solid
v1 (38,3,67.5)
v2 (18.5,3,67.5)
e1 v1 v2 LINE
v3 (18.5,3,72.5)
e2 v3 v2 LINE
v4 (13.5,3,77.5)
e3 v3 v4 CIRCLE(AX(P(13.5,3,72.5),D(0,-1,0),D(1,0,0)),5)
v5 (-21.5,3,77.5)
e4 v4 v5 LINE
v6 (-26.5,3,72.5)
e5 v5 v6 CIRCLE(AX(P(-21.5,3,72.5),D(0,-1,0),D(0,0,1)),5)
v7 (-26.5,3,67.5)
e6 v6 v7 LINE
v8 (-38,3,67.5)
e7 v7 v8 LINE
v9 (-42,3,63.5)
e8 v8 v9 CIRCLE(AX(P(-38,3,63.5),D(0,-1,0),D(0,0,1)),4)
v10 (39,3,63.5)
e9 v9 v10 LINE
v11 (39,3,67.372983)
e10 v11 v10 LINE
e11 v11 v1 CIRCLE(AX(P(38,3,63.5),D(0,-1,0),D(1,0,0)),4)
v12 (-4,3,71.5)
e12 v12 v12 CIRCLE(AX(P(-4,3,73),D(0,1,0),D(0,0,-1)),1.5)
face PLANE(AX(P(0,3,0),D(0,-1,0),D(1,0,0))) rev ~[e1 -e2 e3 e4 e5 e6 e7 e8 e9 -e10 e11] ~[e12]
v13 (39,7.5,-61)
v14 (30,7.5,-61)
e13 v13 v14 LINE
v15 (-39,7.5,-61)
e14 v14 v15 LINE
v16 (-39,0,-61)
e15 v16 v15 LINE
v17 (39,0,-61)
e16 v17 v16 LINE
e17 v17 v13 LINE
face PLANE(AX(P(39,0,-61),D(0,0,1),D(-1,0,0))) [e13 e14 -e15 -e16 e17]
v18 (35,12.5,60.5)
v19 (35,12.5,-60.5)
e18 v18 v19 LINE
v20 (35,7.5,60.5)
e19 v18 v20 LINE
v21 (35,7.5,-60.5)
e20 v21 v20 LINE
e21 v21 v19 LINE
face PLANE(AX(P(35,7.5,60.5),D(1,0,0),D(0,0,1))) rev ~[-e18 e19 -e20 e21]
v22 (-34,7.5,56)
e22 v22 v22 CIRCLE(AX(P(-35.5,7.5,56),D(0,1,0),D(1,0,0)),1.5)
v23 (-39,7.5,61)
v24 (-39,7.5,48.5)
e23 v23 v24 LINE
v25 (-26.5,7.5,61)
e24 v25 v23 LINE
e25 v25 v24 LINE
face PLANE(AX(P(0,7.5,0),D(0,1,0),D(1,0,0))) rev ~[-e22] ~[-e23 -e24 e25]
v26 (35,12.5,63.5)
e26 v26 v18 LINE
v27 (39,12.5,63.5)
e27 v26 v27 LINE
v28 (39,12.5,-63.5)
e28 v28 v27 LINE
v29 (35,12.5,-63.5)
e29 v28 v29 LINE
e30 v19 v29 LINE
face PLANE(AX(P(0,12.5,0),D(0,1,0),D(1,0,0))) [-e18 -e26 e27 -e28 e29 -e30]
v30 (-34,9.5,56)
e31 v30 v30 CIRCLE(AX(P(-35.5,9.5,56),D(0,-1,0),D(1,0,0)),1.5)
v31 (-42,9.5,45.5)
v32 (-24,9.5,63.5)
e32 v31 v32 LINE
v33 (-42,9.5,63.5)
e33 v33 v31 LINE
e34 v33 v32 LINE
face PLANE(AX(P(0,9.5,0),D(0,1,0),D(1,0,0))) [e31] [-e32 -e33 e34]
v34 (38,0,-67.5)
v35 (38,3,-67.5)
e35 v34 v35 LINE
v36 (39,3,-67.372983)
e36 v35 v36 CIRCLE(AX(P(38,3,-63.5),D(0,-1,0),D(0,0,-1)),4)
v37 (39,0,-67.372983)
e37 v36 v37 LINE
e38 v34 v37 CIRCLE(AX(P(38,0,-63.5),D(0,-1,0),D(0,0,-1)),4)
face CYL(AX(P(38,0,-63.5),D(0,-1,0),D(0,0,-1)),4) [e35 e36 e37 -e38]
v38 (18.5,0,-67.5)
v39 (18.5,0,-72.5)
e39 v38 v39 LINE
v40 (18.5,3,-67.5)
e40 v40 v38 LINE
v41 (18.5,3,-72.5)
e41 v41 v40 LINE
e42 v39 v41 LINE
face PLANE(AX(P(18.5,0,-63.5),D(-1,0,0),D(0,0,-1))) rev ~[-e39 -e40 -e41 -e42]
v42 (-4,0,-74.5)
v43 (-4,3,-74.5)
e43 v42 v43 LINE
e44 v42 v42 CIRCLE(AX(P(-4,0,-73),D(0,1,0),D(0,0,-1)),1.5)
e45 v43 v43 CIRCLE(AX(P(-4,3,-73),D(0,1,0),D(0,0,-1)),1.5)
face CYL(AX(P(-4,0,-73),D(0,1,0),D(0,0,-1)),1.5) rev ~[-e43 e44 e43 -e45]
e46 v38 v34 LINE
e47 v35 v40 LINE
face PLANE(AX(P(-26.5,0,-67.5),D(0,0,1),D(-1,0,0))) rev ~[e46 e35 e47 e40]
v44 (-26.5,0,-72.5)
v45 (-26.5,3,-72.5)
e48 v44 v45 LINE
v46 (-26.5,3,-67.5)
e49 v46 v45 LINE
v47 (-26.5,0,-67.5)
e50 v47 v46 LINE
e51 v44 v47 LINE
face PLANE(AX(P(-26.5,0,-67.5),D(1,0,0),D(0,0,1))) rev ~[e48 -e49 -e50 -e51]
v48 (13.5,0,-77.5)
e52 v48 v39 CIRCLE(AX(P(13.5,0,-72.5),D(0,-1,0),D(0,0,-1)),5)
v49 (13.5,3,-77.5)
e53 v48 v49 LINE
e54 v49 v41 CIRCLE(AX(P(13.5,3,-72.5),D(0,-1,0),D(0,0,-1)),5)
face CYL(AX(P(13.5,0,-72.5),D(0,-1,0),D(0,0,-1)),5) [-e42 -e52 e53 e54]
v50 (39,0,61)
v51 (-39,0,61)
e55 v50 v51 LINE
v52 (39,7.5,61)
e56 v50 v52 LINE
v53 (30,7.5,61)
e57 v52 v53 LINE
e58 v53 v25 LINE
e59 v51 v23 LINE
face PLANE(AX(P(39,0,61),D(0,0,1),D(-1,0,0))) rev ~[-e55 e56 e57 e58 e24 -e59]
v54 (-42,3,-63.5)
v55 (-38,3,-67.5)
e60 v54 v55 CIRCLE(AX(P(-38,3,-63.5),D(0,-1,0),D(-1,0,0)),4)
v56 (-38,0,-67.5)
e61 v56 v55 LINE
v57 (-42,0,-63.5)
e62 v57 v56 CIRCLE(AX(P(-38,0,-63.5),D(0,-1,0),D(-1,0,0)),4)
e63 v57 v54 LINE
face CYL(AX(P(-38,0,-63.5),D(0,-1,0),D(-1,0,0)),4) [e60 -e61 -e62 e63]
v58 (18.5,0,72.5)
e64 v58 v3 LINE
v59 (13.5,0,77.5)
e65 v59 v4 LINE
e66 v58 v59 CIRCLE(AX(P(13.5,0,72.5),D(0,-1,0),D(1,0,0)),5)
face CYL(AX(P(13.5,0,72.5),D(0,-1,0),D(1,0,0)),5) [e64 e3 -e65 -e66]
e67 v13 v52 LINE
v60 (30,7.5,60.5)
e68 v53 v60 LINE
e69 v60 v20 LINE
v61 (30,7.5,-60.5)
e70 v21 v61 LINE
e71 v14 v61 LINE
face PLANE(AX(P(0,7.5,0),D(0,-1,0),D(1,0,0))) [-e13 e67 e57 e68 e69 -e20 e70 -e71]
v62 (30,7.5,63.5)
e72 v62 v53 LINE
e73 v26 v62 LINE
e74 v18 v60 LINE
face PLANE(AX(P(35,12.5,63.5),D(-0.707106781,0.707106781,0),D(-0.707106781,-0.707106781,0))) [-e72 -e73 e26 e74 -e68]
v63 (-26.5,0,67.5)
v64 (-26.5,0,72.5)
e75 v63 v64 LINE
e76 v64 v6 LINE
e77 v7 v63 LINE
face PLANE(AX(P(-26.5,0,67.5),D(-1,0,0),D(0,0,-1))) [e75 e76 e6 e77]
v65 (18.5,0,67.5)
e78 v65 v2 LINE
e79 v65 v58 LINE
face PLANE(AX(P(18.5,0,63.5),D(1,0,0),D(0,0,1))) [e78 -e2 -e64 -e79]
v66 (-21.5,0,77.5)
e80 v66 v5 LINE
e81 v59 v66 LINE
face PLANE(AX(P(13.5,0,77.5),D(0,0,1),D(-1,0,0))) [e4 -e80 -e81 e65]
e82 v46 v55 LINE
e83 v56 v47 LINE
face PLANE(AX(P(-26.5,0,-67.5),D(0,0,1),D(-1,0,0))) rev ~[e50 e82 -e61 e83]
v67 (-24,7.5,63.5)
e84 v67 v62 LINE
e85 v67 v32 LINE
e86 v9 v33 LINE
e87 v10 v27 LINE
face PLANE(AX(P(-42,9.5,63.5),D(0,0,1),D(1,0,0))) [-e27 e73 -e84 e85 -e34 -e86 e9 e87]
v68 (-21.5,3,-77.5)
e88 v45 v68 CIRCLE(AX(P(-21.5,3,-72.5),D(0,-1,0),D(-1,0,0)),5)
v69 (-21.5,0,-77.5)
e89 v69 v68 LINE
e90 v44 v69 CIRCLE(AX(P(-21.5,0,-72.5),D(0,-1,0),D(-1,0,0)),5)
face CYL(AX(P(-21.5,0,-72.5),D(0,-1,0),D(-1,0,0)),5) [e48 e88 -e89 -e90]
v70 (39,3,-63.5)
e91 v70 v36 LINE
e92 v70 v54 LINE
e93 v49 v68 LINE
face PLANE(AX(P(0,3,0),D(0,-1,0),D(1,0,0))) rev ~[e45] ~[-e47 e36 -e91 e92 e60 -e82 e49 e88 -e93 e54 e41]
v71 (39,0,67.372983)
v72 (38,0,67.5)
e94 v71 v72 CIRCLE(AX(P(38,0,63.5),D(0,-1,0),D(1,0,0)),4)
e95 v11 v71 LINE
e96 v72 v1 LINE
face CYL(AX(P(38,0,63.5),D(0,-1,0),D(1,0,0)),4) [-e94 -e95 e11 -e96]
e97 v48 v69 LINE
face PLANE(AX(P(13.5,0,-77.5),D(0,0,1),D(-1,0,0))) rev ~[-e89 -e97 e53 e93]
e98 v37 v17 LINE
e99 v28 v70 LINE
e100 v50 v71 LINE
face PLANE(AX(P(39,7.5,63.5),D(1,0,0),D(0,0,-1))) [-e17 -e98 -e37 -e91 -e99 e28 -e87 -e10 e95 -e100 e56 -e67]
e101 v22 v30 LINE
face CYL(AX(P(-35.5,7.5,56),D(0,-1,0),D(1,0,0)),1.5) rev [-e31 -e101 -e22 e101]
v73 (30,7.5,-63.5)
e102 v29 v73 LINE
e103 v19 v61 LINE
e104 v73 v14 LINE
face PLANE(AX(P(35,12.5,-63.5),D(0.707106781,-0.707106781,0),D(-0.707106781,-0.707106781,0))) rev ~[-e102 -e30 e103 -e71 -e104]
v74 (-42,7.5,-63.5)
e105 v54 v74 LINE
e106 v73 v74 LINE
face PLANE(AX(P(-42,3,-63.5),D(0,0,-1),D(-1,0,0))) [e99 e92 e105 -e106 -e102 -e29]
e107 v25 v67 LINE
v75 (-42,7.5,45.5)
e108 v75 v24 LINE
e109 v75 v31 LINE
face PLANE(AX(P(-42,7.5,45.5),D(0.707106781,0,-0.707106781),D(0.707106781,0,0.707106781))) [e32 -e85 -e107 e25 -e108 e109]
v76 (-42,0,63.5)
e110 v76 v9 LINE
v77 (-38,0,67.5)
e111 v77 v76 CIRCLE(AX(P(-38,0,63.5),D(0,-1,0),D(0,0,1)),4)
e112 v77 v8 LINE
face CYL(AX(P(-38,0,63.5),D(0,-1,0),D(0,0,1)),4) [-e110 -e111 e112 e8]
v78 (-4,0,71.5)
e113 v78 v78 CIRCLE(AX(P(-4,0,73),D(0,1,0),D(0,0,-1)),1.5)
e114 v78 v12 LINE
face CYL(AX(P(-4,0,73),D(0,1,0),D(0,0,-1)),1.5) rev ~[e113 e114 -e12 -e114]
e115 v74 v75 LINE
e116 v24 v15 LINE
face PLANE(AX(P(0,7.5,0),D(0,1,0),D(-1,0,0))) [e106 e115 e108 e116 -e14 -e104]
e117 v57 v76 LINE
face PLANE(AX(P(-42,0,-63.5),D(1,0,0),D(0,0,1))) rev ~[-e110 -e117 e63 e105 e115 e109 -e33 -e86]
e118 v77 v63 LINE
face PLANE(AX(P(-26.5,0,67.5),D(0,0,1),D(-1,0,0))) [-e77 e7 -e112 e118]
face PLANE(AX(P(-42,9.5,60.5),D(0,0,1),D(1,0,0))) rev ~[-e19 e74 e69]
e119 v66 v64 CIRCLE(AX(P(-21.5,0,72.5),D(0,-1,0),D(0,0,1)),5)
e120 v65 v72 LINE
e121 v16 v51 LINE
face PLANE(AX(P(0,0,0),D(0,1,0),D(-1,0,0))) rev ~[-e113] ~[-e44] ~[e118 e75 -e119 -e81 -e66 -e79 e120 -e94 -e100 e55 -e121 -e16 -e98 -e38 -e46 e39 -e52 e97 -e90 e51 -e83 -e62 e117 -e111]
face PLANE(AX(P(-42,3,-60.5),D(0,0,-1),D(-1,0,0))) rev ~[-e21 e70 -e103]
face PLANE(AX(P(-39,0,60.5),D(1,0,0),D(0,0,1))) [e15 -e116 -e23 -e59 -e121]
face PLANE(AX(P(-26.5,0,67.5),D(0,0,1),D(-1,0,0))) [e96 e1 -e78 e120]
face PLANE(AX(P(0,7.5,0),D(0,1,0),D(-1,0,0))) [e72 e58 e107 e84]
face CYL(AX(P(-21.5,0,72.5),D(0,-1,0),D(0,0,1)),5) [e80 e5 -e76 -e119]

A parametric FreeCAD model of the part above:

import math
import FreeCAD as App
import Part
import Sketcher

doc = App.newDocument("Part")
body = doc.addObject("PartDesign::Body", "Body")

sketch1 = body.newObject("Sketcher::SketchObject", "Sketch")
sketch1.AttachmentSupport = (doc.getObject("XZ_Plane"), [""])
sketch1.MapMode = "FlatFace"
sketch1.addGeometry([
    Part.LineSegment(App.Vector(-42, -63.5, 0), App.Vector(-42, 63.5, 0)),
    Part.LineSegment(App.Vector(-42, 63.5, 0), App.Vector(42, 63.5, 0)),
    Part.LineSegment(App.Vector(42, 63.5, 0), App.Vector(42, -63.5, 0)),
    Part.LineSegment(App.Vector(42, -63.5, 0), App.Vector(-42, -63.5, 0)),
    Part.LineSegment(App.Vector(39, -60.5, 0), App.Vector(39, 60.5, 0)),
    Part.LineSegment(App.Vector(39, 60.5, 0), App.Vector(-39, 60.5, 0)),
    Part.LineSegment(App.Vector(-39, 60.5, 0), App.Vector(-39, -60.5, 0)),
    Part.LineSegment(App.Vector(-39, -60.5, 0), App.Vector(39, -60.5, 0)),
], False)
sketch1.addConstraint([
    Sketcher.Constraint("Coincident", 0, 2, 1, 1),
    Sketcher.Constraint("Coincident", 1, 2, 2, 1),
    Sketcher.Constraint("Coincident", 2, 2, 3, 1),
    Sketcher.Constraint("Coincident", 3, 2, 0, 1),
    Sketcher.Constraint("Coincident", 4, 2, 5, 1),
    Sketcher.Constraint("Coincident", 5, 2, 6, 1),
    Sketcher.Constraint("Coincident", 6, 2, 7, 1),
    Sketcher.Constraint("Coincident", 7, 2, 4, 1),
    Sketcher.Constraint("Vertical", 0),
    Sketcher.Constraint("Horizontal", 1),
    Sketcher.Constraint("Vertical", 2),
    Sketcher.Constraint("Horizontal", 3),
    Sketcher.Constraint("Vertical", 4),
    Sketcher.Constraint("Horizontal", 5),
    Sketcher.Constraint("Vertical", 6),
    Sketcher.Constraint("Horizontal", 7),
    Sketcher.Constraint("Symmetric", 0, 2, 2, 2, -1, 1),
    Sketcher.Constraint("Symmetric", 4, 2, 6, 2, -1, 1),
    Sketcher.Constraint("DistanceX", 5, 2, 5, 1, 78.0),
    Sketcher.Constraint("DistanceY", 4, 1, 4, 2, 121.0),
    Sketcher.Constraint("DistanceX", 4, 2, 1, 2, 3.0),
    Sketcher.Constraint("DistanceY", 4, 2, 1, 2, 3.0),
])
pad1 = body.newObject("PartDesign::Pad", "Pad")
pad1.Profile = sketch1
pad1.Length = 7.5
pad1.Reversed = True

sketch2 = body.newObject("Sketcher::SketchObject", "Sketch001")
sketch2.AttachmentSupport = (doc.getObject("XZ_Plane"), [""])
sketch2.MapMode = "FlatFace"
sketch2.AttachmentOffset = App.Placement(App.Vector(0, 0, -7.5), App.Rotation())
sketch2.addGeometry([
    Part.LineSegment(App.Vector(-42, 45.5, 0), App.Vector(-42, 63.5, 0)),
    Part.LineSegment(App.Vector(-42, 63.5, 0), App.Vector(-24, 63.5, 0)),
    Part.LineSegment(App.Vector(-24, 63.5, 0), App.Vector(-42, 45.5, 0)),
], False)
sketch2.addConstraint([
    Sketcher.Constraint("Coincident", 0, 2, 1, 1),
    Sketcher.Constraint("Coincident", 1, 2, 2, 1),
    Sketcher.Constraint("Coincident", 2, 2, 0, 1),
    Sketcher.Constraint("Vertical", 0),
    Sketcher.Constraint("Horizontal", 1),
    Sketcher.Constraint("Equal", 1, 0),
    Sketcher.Constraint("DistanceX", 1, 1, 1, 2, 18.0),
    Sketcher.Constraint("DistanceX", 0, 2, -1, 1, 42.0),
    Sketcher.Constraint("DistanceY", -1, 1, 0, 2, 63.5),
])
pad2 = body.newObject("PartDesign::Pad", "Pad001")
pad2.Profile = sketch2
pad2.Length = 2
pad2.Reversed = True

sketch3 = body.newObject("Sketcher::SketchObject", "Sketch002")
sketch3.AttachmentSupport = (doc.getObject("XZ_Plane"), [""])
sketch3.MapMode = "FlatFace"
sketch3.AttachmentOffset = App.Placement(App.Vector(0, 0, -7.5), App.Rotation())
sketch3.addGeometry(Part.Circle(App.Vector(-35.5, 56, 0), App.Vector(0, 0, 1), 1.5), False)
sketch3.addConstraint([
    Sketcher.Constraint("Diameter", 0, 3.0),
    Sketcher.Constraint("DistanceY", -1, 1, 0, 3, 56.0),
    Sketcher.Constraint("DistanceX", 0, 3, -1, 1, 35.5),
])
pocket1 = body.newObject("PartDesign::Pocket", "Pocket")
pocket1.Profile = sketch3
pocket1.Type = "ThroughAll"

sketch4 = body.newObject("Sketcher::SketchObject", "Sketch003")
sketch4.AttachmentSupport = (doc.getObject("XZ_Plane"), [""])
sketch4.MapMode = "FlatFace"
sketch4.addGeometry([
    Part.ArcOfCircle(Part.Circle(App.Vector(-38, 63.5, 0), App.Vector(0, 0, 1), 4), math.radians(90), math.radians(180)),
    Part.LineSegment(App.Vector(-42, 63.5, 0), App.Vector(42, 63.5, 0)),
    Part.ArcOfCircle(Part.Circle(App.Vector(38, 63.5, 0), App.Vector(0, 0, 1), 4), math.radians(0), math.radians(90)),
    Part.LineSegment(App.Vector(38, 67.5, 0), App.Vector(-38, 67.5, 0)),
    Part.ArcOfCircle(Part.Circle(App.Vector(-38, -63.5, 0), App.Vector(0, 0, 1), 4), math.radians(180), math.radians(270)),
    Part.LineSegment(App.Vector(-38, -67.5, 0), App.Vector(38, -67.5, 0)),
    Part.ArcOfCircle(Part.Circle(App.Vector(38, -63.5, 0), App.Vector(0, 0, 1), 4), math.radians(-90), math.radians(0)),
    Part.LineSegment(App.Vector(42, -63.5, 0), App.Vector(-42, -63.5, 0)),
], False)
sketch4.addConstraint([
    Sketcher.Constraint("Coincident", 0, 2, 1, 1),
    Sketcher.Constraint("Coincident", 1, 2, 2, 1),
    Sketcher.Constraint("Tangent", 2, 2, 3, 1),
    Sketcher.Constraint("Tangent", 3, 2, 0, 1),
    Sketcher.Constraint("Tangent", 4, 2, 5, 1),
    Sketcher.Constraint("Tangent", 5, 2, 6, 1),
    Sketcher.Constraint("Coincident", 6, 2, 7, 1),
    Sketcher.Constraint("Coincident", 7, 2, 4, 1),
    Sketcher.Constraint("Horizontal", 1),
    Sketcher.Constraint("Horizontal", 3),
    Sketcher.Constraint("Horizontal", 5),
    Sketcher.Constraint("Horizontal", 7),
    Sketcher.Constraint("Equal", 0, 2),
    Sketcher.Constraint("Equal", 2, 4),
    Sketcher.Constraint("Equal", 4, 6),
    Sketcher.Constraint("Symmetric", 2, 3, 4, 3, -1, 1),
    Sketcher.Constraint("Symmetric", 0, 2, 6, 2, -1, 1),
    Sketcher.Constraint("Horizontal", 2, 3, 0, 2),
    Sketcher.Constraint("Vertical", 0, 3, 4, 3),
    Sketcher.Constraint("Radius", 0, 4.0),
    Sketcher.Constraint("DistanceY", 4, 2, 3, 2, 135.0),
    Sketcher.Constraint("DistanceX", 1, 1, 1, 2, 84.0),
])
pad3 = body.newObject("PartDesign::Pad", "Pad002")
pad3.Profile = sketch4
pad3.Length = 3
pad3.Reversed = True

sketch5 = body.newObject("Sketcher::SketchObject", "Sketch004")
sketch5.AttachmentSupport = (doc.getObject("XZ_Plane"), [""])
sketch5.MapMode = "FlatFace"
sketch5.addGeometry([
    Part.LineSegment(App.Vector(-26.5, 63.5, 0), App.Vector(18.5, 63.5, 0)),
    Part.LineSegment(App.Vector(18.5, 63.5, 0), App.Vector(18.5, 72.5, 0)),
    Part.ArcOfCircle(Part.Circle(App.Vector(13.5, 72.5, 0), App.Vector(0, 0, 1), 5), math.radians(0), math.radians(90)),
    Part.LineSegment(App.Vector(13.5, 77.5, 0), App.Vector(-21.5, 77.5, 0)),
    Part.ArcOfCircle(Part.Circle(App.Vector(-21.5, 72.5, 0), App.Vector(0, 0, 1), 5), math.radians(90), math.radians(180)),
    Part.LineSegment(App.Vector(-26.5, 72.5, 0), App.Vector(-26.5, 63.5, 0)),
    Part.LineSegment(App.Vector(18.5, -63.5, 0), App.Vector(-26.5, -63.5, 0)),
    Part.LineSegment(App.Vector(-26.5, -63.5, 0), App.Vector(-26.5, -72.5, 0)),
    Part.ArcOfCircle(Part.Circle(App.Vector(-21.5, -72.5, 0), App.Vector(0, 0, 1), 5), math.radians(180), math.radians(270)),
    Part.LineSegment(App.Vector(-21.5, -77.5, 0), App.Vector(13.5, -77.5, 0)),
    Part.ArcOfCircle(Part.Circle(App.Vector(13.5, -72.5, 0), App.Vector(0, 0, 1), 5), math.radians(-90), math.radians(0)),
    Part.LineSegment(App.Vector(18.5, -72.5, 0), App.Vector(18.5, -63.5, 0)),
], False)
sketch5.addConstraint([
    Sketcher.Constraint("Coincident", 0, 2, 1, 1),
    Sketcher.Constraint("Tangent", 1, 2, 2, 1),
    Sketcher.Constraint("Tangent", 2, 2, 3, 1),
    Sketcher.Constraint("Tangent", 3, 2, 4, 1),
    Sketcher.Constraint("Tangent", 4, 2, 5, 1),
    Sketcher.Constraint("Coincident", 5, 2, 0, 1),
    Sketcher.Constraint("Coincident", 6, 2, 7, 1),
    Sketcher.Constraint("Tangent", 7, 2, 8, 1),
    Sketcher.Constraint("Tangent", 8, 2, 9, 1),
    Sketcher.Constraint("Tangent", 9, 2, 10, 1),
    Sketcher.Constraint("Tangent", 10, 2, 11, 1),
    Sketcher.Constraint("Coincident", 11, 2, 6, 1),
    Sketcher.Constraint("Horizontal", 0),
    Sketcher.Constraint("Vertical", 1),
    Sketcher.Constraint("Horizontal", 3),
    Sketcher.Constraint("Vertical", 5),
    Sketcher.Constraint("Horizontal", 6),
    Sketcher.Constraint("Vertical", 7),
    Sketcher.Constraint("Horizontal", 9),
    Sketcher.Constraint("Vertical", 11),
    Sketcher.Constraint("Equal", 2, 4),
    Sketcher.Constraint("Equal", 4, 8),
    Sketcher.Constraint("Equal", 8, 10),
    Sketcher.Constraint("Symmetric", 4, 3, 8, 3, -1),
    Sketcher.Constraint("Symmetric", 0, 2, 11, 2, -1),
    Sketcher.Constraint("Radius", 2, 5.0),
    Sketcher.Constraint("DistanceX", 0, 1, 0, 2, 45.0),
    Sketcher.Constraint("DistanceY", 1, 1, 1, 2, 9.0),
    Sketcher.Constraint("DistanceY", 8, 3, 4, 3, 145.0),
    Sketcher.Constraint("DistanceX", -1, 1, 2, 3, 13.5),
])
pad4 = body.newObject("PartDesign::Pad", "Pad003")
pad4.Profile = sketch5
pad4.Length = 3
pad4.Reversed = True

sketch6 = body.newObject("Sketcher::SketchObject", "Sketch005")
sketch6.AttachmentSupport = (doc.getObject("XZ_Plane"), [""])
sketch6.MapMode = "FlatFace"
sketch6.addGeometry([
    Part.Circle(App.Vector(-4, 73, 0), App.Vector(0, 0, 1), 1.5),
    Part.Circle(App.Vector(-4, -73, 0), App.Vector(0, 0, 1), 1.5),
], False)
sketch6.addConstraint([
    Sketcher.Constraint("Equal", 0, 1),
    Sketcher.Constraint("Symmetric", 0, 3, 1, 3, -1),
    Sketcher.Constraint("Diameter", 0, 3.0),
    Sketcher.Constraint("DistanceX", 0, 3, -1, 1, 4.0),
    Sketcher.Constraint("DistanceY", -1, 1, 0, 3, 73.0),
])
doc.recompute()
hole = body.newObject("PartDesign::Hole", "Hole")
hole.Profile = sketch6
hole.ThreadType = "None"
hole.Diameter = 3
hole.DepthType = "ThroughAll"

sketch7 = body.newObject("Sketcher::SketchObject", "Sketch006")
sketch7.AttachmentSupport = (doc.getObject("YZ_Plane"), [""])
sketch7.MapMode = "FlatFace"
sketch7.AttachmentOffset = App.Placement(App.Vector(0, 0, 42), App.Rotation())
sketch7.addGeometry([
    Part.LineSegment(App.Vector(7.5, 63.5, 0), App.Vector(3, 63.5, 0)),
    Part.LineSegment(App.Vector(3, 63.5, 0), App.Vector(3, 67.5, 0)),
    Part.LineSegment(App.Vector(3, 67.5, 0), App.Vector(0, 67.5, 0)),
    Part.LineSegment(App.Vector(0, 67.5, 0), App.Vector(0, -67.5, 0)),
    Part.LineSegment(App.Vector(0, -67.5, 0), App.Vector(3, -67.5, 0)),
    Part.LineSegment(App.Vector(3, -67.5, 0), App.Vector(3, -63.5, 0)),
    Part.LineSegment(App.Vector(3, -63.5, 0), App.Vector(7.5, -63.5, 0)),
    Part.LineSegment(App.Vector(7.5, -63.5, 0), App.Vector(7.5, 63.5, 0)),
], False)
sketch7.addConstraint([
    Sketcher.Constraint("Coincident", 0, 2, 1, 1),
    Sketcher.Constraint("Coincident", 1, 2, 2, 1),
    Sketcher.Constraint("Coincident", 2, 2, 3, 1),
    Sketcher.Constraint("Coincident", 3, 2, 4, 1),
    Sketcher.Constraint("Coincident", 4, 2, 5, 1),
    Sketcher.Constraint("Coincident", 5, 2, 6, 1),
    Sketcher.Constraint("Coincident", 6, 2, 7, 1),
    Sketcher.Constraint("Coincident", 7, 2, 0, 1),
    Sketcher.Constraint("Horizontal", 0),
    Sketcher.Constraint("Vertical", 1),
    Sketcher.Constraint("Horizontal", 2),
    Sketcher.Constraint("Vertical", 3),
    Sketcher.Constraint("Horizontal", 4),
    Sketcher.Constraint("Vertical", 5),
    Sketcher.Constraint("Horizontal", 6),
    Sketcher.Constraint("Vertical", 7),
    Sketcher.Constraint("Symmetric", 2, 2, 3, 2, -1, 1),
    Sketcher.Constraint("Symmetric", 0, 2, 5, 2, -1),
    Sketcher.Constraint("DistanceX", 2, 2, 2, 1, 3.0),
    Sketcher.Constraint("DistanceY", 1, 1, 1, 2, 4.0),
    Sketcher.Constraint("DistanceY", 3, 2, 3, 1, 135.0),
    Sketcher.Constraint("DistanceX", 0, 2, 0, 1, 4.5),
])
pocket2 = body.newObject("PartDesign::Pocket", "Pocket001")
pocket2.Profile = sketch7
pocket2.Length = 3

sketch8 = body.newObject("Sketcher::SketchObject", "Sketch007")
sketch8.AttachmentSupport = (doc.getObject("XZ_Plane"), [""])
sketch8.MapMode = "FlatFace"
sketch8.AttachmentOffset = App.Placement(App.Vector(0, 0, -7.5), App.Rotation())
sketch8.addGeometry([
    Part.LineSegment(App.Vector(35, 63.5, 0), App.Vector(39, 63.5, 0)),
    Part.LineSegment(App.Vector(39, 63.5, 0), App.Vector(39, -63.5, 0)),
    Part.LineSegment(App.Vector(39, -63.5, 0), App.Vector(35, -63.5, 0)),
    Part.LineSegment(App.Vector(35, -63.5, 0), App.Vector(35, 63.5, 0)),
], False)
sketch8.addConstraint([
    Sketcher.Constraint("Coincident", 0, 2, 1, 1),
    Sketcher.Constraint("Coincident", 1, 2, 2, 1),
    Sketcher.Constraint("Coincident", 2, 2, 3, 1),
    Sketcher.Constraint("Coincident", 3, 2, 0, 1),
    Sketcher.Constraint("Horizontal", 0),
    Sketcher.Constraint("Vertical", 1),
    Sketcher.Constraint("Horizontal", 2),
    Sketcher.Constraint("Vertical", 3),
    Sketcher.Constraint("DistanceX", 0, 1, 0, 2, 4.0),
    Sketcher.Constraint("DistanceY", 1, 2, 1, 1, 127.0),
    Sketcher.Constraint("DistanceX", -1, 1, 0, 2, 39.0),
    Sketcher.Constraint("DistanceY", -1, 1, 0, 2, 63.5),
])
pad5 = body.newObject("PartDesign::Pad", "Pad004")
pad5.Profile = sketch8
pad5.Length = 5
pad5.Reversed = True

sketch9 = body.newObject("Sketcher::SketchObject", "Sketch008")
sketch9.AttachmentSupport = (doc.getObject("XY_Plane"), [""])
sketch9.MapMode = "FlatFace"
sketch9.AttachmentOffset = App.Placement(App.Vector(0, 0, -63.5), App.Rotation())
sketch9.addGeometry([
    Part.LineSegment(App.Vector(30, 7.5, 0), App.Vector(35, 12.5, 0)),
    Part.LineSegment(App.Vector(35, 12.5, 0), App.Vector(35, 7.5, 0)),
    Part.LineSegment(App.Vector(35, 7.5, 0), App.Vector(30, 7.5, 0)),
], False)
sketch9.addConstraint([
    Sketcher.Constraint("Coincident", 0, 2, 1, 1),
    Sketcher.Constraint("Coincident", 1, 2, 2, 1),
    Sketcher.Constraint("Coincident", 2, 2, 0, 1),
    Sketcher.Constraint("Vertical", 1),
    Sketcher.Constraint("Horizontal", 2),
    Sketcher.Constraint("Equal", 2, 1),
    Sketcher.Constraint("DistanceX", 2, 2, 2, 1, 5.0),
    Sketcher.Constraint("DistanceX", -1, 1, 0, 2, 35.0),
    Sketcher.Constraint("DistanceY", -1, 1, 0, 2, 12.5),
])
pad6 = body.newObject("PartDesign::Pad", "Pad005")
pad6.Profile = sketch9
pad6.Length = 3

sketch10 = body.newObject("Sketcher::SketchObject", "Sketch009")
sketch10.AttachmentSupport = (doc.getObject("XY_Plane"), [""])
sketch10.MapMode = "FlatFace"
sketch10.AttachmentOffset = App.Placement(App.Vector(0, 0, 63.5), App.Rotation())
sketch10.addGeometry([
    Part.LineSegment(App.Vector(30, 7.5, 0), App.Vector(35, 7.5, 0)),
    Part.LineSegment(App.Vector(35, 7.5, 0), App.Vector(35, 12.5, 0)),
    Part.LineSegment(App.Vector(35, 12.5, 0), App.Vector(30, 7.5, 0)),
], False)
sketch10.addConstraint([
    Sketcher.Constraint("Coincident", 0, 2, 1, 1),
    Sketcher.Constraint("Coincident", 1, 2, 2, 1),
    Sketcher.Constraint("Coincident", 2, 2, 0, 1),
    Sketcher.Constraint("Horizontal", 0),
    Sketcher.Constraint("Vertical", 1),
    Sketcher.Constraint("Equal", 0, 1),
    Sketcher.Constraint("DistanceX", 0, 1, 0, 2, 5.0),
    Sketcher.Constraint("DistanceX", -1, 1, 0, 2, 35.0),
    Sketcher.Constraint("DistanceY", -1, 1, 0, 2, 7.5),
])
pad7 = body.newObject("PartDesign::Pad", "Pad006")
pad7.Profile = sketch10
pad7.Length = 3
pad7.Reversed = True

sketch11 = body.newObject("Sketcher::SketchObject", "Sketch010")
sketch11.AttachmentSupport = (doc.getObject("XZ_Plane"), [""])
sketch11.MapMode = "FlatFace"
sketch11.addGeometry([
    Part.LineSegment(App.Vector(-39, -61, 0), App.Vector(39, -61, 0)),
    Part.LineSegment(App.Vector(39, -61, 0), App.Vector(39, -60.5, 0)),
    Part.LineSegment(App.Vector(39, -60.5, 0), App.Vector(-39, -60.5, 0)),
    Part.LineSegment(App.Vector(-39, -60.5, 0), App.Vector(-39, -61, 0)),
    Part.LineSegment(App.Vector(-39, 61, 0), App.Vector(-39, 60.5, 0)),
    Part.LineSegment(App.Vector(-39, 60.5, 0), App.Vector(39, 60.5, 0)),
    Part.LineSegment(App.Vector(39, 60.5, 0), App.Vector(39, 61, 0)),
    Part.LineSegment(App.Vector(39, 61, 0), App.Vector(-39, 61, 0)),
], False)
sketch11.addConstraint([
    Sketcher.Constraint("Coincident", 0, 2, 1, 1),
    Sketcher.Constraint("Coincident", 1, 2, 2, 1),
    Sketcher.Constraint("Coincident", 2, 2, 3, 1),
    Sketcher.Constraint("Coincident", 3, 2, 0, 1),
    Sketcher.Constraint("Coincident", 4, 2, 5, 1),
    Sketcher.Constraint("Coincident", 5, 2, 6, 1),
    Sketcher.Constraint("Coincident", 6, 2, 7, 1),
    Sketcher.Constraint("Coincident", 7, 2, 4, 1),
    Sketcher.Constraint("Horizontal", 0),
    Sketcher.Constraint("Vertical", 1),
    Sketcher.Constraint("Horizontal", 2),
    Sketcher.Constraint("Vertical", 3),
    Sketcher.Constraint("Vertical", 4),
    Sketcher.Constraint("Horizontal", 5),
    Sketcher.Constraint("Vertical", 6),
    Sketcher.Constraint("Horizontal", 7),
    Sketcher.Constraint("Symmetric", 1, 2, 4, 2, -1, 1),
    Sketcher.Constraint("Symmetric", 3, 2, 6, 2, -1, 1),
    Sketcher.Constraint("Vertical", 3, 2, 4, 2),
    Sketcher.Constraint("DistanceY", 1, 1, 1, 2, 0.5),
    Sketcher.Constraint("DistanceX", 0, 1, 0, 2, 78.0),
    Sketcher.Constraint("DistanceY", 0, 2, -1, 1, 61.0),
])
pocket3 = body.newObject("PartDesign::Pocket", "Pocket002")
pocket3.Profile = sketch11
pocket3.Length = 7.5

doc.recompute()
